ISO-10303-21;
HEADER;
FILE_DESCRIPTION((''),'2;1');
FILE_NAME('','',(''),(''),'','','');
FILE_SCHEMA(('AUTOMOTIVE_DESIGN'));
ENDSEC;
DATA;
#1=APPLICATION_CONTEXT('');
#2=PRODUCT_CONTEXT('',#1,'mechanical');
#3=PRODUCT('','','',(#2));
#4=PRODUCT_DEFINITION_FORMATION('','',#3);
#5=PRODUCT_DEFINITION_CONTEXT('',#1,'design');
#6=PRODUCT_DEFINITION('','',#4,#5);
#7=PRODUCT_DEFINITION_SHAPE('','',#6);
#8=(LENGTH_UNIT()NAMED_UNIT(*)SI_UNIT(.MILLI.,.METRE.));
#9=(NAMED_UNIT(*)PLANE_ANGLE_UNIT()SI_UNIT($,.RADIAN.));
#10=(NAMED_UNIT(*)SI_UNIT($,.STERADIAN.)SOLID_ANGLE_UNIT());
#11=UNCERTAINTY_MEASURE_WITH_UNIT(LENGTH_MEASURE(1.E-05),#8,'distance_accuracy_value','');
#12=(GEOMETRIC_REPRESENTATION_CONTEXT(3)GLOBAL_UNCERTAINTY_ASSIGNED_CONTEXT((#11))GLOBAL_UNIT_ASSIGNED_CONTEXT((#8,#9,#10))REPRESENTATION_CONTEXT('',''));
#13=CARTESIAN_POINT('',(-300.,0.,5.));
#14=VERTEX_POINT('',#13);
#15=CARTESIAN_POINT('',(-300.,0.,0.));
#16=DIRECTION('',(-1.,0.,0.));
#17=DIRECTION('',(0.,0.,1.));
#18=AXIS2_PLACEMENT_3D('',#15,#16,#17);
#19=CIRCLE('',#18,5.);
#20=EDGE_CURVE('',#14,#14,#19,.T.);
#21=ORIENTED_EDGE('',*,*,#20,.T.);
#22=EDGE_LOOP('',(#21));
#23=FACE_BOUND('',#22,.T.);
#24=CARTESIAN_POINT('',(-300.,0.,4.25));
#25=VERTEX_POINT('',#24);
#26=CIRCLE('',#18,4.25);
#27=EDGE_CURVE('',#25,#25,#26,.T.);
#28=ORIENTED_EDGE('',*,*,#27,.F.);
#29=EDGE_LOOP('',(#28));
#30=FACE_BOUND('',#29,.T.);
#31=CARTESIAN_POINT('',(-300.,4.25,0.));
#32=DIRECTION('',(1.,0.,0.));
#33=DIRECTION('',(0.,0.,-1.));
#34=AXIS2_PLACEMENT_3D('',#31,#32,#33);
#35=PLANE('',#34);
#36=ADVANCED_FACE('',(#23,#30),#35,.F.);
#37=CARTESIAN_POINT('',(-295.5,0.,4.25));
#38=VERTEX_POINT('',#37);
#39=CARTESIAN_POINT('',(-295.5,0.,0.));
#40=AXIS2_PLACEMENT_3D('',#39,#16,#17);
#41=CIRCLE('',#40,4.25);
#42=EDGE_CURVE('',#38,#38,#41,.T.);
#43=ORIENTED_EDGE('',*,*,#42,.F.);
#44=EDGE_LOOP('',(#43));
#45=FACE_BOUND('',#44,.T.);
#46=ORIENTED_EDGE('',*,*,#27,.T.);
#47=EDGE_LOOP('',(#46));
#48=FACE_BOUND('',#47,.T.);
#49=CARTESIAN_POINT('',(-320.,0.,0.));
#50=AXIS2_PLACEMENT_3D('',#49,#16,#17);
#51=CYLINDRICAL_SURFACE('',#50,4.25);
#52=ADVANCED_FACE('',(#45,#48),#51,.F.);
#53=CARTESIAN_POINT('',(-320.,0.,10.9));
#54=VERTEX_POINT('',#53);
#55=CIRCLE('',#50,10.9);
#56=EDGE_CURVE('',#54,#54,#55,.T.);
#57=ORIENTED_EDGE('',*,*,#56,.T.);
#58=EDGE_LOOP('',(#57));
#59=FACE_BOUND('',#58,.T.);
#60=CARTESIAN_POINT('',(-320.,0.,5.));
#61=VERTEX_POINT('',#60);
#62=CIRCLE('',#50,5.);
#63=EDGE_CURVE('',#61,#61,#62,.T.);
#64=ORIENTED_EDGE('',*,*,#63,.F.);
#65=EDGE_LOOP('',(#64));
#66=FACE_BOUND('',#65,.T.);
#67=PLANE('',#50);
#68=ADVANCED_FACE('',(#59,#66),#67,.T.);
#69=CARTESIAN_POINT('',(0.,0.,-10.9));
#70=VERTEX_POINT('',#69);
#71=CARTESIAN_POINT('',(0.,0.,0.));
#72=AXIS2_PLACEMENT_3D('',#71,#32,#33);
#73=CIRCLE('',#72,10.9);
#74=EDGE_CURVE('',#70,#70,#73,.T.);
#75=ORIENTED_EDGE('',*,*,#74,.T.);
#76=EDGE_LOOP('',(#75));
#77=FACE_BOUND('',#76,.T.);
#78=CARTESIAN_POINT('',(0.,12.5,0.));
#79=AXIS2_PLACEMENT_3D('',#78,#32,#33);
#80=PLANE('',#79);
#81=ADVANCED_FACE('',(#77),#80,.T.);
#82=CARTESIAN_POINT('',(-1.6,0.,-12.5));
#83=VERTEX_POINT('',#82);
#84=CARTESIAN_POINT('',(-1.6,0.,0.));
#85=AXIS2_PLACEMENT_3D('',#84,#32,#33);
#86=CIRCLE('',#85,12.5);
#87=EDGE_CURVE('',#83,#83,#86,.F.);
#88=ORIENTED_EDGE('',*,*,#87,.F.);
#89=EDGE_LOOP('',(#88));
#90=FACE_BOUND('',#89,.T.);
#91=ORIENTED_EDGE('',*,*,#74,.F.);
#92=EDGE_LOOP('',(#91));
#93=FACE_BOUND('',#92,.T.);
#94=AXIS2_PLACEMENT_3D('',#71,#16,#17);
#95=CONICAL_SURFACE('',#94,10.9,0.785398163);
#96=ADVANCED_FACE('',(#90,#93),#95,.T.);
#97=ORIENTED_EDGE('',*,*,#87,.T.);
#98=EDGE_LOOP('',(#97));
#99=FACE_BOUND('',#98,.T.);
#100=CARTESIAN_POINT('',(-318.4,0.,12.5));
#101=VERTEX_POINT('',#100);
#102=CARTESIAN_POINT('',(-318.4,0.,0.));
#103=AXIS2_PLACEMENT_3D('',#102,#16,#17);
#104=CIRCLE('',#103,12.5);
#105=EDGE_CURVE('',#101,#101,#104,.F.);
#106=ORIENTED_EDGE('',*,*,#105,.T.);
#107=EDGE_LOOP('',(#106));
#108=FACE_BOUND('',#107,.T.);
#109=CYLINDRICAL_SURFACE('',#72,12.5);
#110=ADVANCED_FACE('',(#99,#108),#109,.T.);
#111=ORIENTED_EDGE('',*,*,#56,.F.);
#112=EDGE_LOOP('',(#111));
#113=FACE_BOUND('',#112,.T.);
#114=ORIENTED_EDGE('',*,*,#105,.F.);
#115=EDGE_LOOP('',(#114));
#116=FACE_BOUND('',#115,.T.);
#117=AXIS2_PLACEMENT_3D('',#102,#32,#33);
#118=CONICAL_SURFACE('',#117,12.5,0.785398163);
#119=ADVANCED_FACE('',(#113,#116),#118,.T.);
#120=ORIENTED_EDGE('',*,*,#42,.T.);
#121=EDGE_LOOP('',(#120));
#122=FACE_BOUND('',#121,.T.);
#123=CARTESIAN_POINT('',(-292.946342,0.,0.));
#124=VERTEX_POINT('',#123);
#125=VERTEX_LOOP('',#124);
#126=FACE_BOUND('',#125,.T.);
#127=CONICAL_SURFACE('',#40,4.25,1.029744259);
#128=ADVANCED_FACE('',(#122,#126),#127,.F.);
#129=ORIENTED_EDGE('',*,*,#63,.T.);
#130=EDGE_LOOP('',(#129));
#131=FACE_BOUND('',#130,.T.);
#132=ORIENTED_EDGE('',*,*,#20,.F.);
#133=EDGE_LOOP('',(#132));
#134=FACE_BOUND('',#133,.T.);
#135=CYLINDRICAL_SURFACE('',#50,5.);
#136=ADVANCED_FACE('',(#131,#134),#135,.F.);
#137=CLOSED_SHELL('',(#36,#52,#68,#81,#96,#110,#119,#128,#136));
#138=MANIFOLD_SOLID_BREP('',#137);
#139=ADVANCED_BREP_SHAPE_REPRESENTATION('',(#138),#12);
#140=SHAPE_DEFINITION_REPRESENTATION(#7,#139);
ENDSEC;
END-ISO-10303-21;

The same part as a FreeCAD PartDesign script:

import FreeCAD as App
import Part
import Sketcher


def edges_at(feature, points):
    """Names of the edges that pass closest to the given points."""
    edges = feature.Shape.Edges
    near = lambda p: min(range(len(edges)), key=lambda i: edges[i].distToShape(Part.Vertex(*p))[0])
    return sorted({f"Edge{near(p) + 1}" for p in points})


def add_polygon(sketch, points):
    """Adds a closed chain of lines whose ends are joined by coincident constraints."""
    first, n = sketch.GeometryCount, len(points)
    for a, b in zip(points, points[1:] + points[:1]):
        sketch.addGeometry(Part.LineSegment(App.Vector(*a, 0), App.Vector(*b, 0)), False)
    for i in range(n):
        sketch.addConstraint(Sketcher.Constraint("Coincident", first + i, 2, first + (i + 1) % n, 1))

doc = App.newDocument("Part")
body = doc.addObject("PartDesign::Body", "Body")

# Sketch on XY plane
sketch1 = body.newObject("Sketcher::SketchObject", "Sketch")
sketch1.AttachmentSupport = (doc.getObject("XY_Plane"), [""])
sketch1.MapMode = "FlatFace"
add_polygon(sketch1, [(-320, 12.5), (-320, 0), (0, 0), (0, 12.5)])  # lines 0-3
sketch1.addConstraint([
    Sketcher.Constraint("Vertical", 0),
    Sketcher.Constraint("Horizontal", 1),
    Sketcher.Constraint("Vertical", 2),
    Sketcher.Constraint("Horizontal", 3),
    Sketcher.Constraint("Coincident", 1, 2, -1, 1),
    Sketcher.Constraint("DistanceX", 1, 1, 1, 2, 320.0),
    Sketcher.Constraint("DistanceY", 0, 2, 0, 1, 12.5),
])
revolution = body.newObject("PartDesign::Revolution", "Revolution")
revolution.Profile = sketch1
revolution.ReferenceAxis = (sketch1, ["H_Axis"])
revolution.Angle = 360
doc.recompute()

chamfer = body.newObject("PartDesign::Chamfer", "Chamfer")
chamfer.Base = (revolution, edges_at(revolution, [(-320, 0, 12.5), (0, 0, 12.5)]))
chamfer.Size = 1.6

# Sketch on YZ plane
sketch2 = body.newObject("Sketcher::SketchObject", "Sketch001")
sketch2.AttachmentSupport = (doc.getObject("YZ_Plane"), [""])
sketch2.MapMode = "FlatFace"
sketch2.AttachmentOffset = App.Placement(App.Vector(0, 0, -320), App.Rotation())
sketch2.addGeometry(Part.Circle(App.Vector(0, 0, 0), App.Vector(0, 0, 1), 4.25), False)
sketch2.addConstraint([
    Sketcher.Constraint("Coincident", 0, 3, -1, 1),
    Sketcher.Constraint("Diameter", 0, 8.5),
])
doc.recompute()
hole = body.newObject("PartDesign::Hole", "Hole")
hole.Profile = sketch2
hole.ThreadType = "None"
hole.Diameter = 8.5
hole.DepthType = "Dimension"
hole.Depth = 24.5
hole.DrillPoint = "Angled"
hole.DrillPointAngle = 118
hole.HoleCutType = "Counterbore"
hole.HoleCutDiameter = 10
hole.HoleCutDepth = 20
hole.Reversed = True

doc.recompute()
